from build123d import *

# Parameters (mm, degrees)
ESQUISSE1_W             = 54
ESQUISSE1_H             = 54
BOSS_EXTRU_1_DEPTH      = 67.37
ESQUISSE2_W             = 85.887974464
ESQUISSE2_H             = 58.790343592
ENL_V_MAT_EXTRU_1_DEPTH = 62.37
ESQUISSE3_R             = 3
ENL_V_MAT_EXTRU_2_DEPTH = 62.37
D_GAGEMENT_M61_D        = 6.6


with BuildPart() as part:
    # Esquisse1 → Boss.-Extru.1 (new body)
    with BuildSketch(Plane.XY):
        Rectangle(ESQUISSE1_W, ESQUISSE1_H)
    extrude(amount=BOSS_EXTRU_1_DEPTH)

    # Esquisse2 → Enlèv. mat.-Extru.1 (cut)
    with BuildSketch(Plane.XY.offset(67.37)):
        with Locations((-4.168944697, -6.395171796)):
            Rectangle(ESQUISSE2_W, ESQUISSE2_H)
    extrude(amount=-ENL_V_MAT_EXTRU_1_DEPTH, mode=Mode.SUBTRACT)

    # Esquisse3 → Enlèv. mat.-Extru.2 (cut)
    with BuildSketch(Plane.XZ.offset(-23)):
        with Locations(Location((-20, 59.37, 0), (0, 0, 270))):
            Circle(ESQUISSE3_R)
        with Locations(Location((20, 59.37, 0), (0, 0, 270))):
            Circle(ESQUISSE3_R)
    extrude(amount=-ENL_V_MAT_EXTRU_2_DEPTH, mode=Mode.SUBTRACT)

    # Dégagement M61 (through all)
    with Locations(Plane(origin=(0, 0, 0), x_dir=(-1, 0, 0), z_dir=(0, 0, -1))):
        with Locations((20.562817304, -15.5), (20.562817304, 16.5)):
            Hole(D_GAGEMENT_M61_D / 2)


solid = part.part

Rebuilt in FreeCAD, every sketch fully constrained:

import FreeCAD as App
import Part
import Sketcher
from FreeCAD import Vector
Q = App.Units.Quantity

doc = App.newDocument("Part")
body = doc.addObject("PartDesign::Body", "Body")

sketch1 = body.newObject("Sketcher::SketchObject", "Sketch")
sketch1.AttachmentSupport = (doc.getObject("XY_Plane"), [""])
sketch1.MapMode = "FlatFace"
sketch1.addGeometry([
    Part.LineSegment(Vector(-27, 27, 0), Vector(-27, -27, 0)),
    Part.LineSegment(Vector(-27, -27, 0), Vector(27, -27, 0)),
    Part.LineSegment(Vector(27, -27, 0), Vector(27, 27, 0)),
    Part.LineSegment(Vector(27, 27, 0), Vector(-27, 27, 0)),
], False)
sketch1.addConstraint([
    Sketcher.Constraint("Coincident", 0, 2, 1, 1),
    Sketcher.Constraint("Coincident", 1, 2, 2, 1),
    Sketcher.Constraint("Coincident", 2, 2, 3, 1),
    Sketcher.Constraint("Coincident", 3, 2, 0, 1),
    Sketcher.Constraint("Vertical", 0),
    Sketcher.Constraint("Horizontal", 1),
    Sketcher.Constraint("Vertical", 2),
    Sketcher.Constraint("Horizontal", 3),
    Sketcher.Constraint("Symmetric", 0, 2, 2, 2, -1, 1),
    Sketcher.Constraint("Equal", 3, 0),
    Sketcher.Constraint("DistanceX", 1, 1, 1, 2, Q("54 mm")),
])
pad1 = body.newObject("PartDesign::Pad", "Pad")
pad1.Profile = sketch1
pad1.Length = 67.37

sketch2 = body.newObject("Sketcher::SketchObject", "Sketch001")
sketch2.AttachmentSupport = (doc.getObject("XY_Plane"), [""])
sketch2.MapMode = "FlatFace"
sketch2.AttachmentOffset = App.Placement(Vector(0, 0, 67.37), App.Rotation())
sketch2.addGeometry([
    Part.LineSegment(Vector(-47, 23, 0), Vector(-47, -36, 0)),
    Part.LineSegment(Vector(-47, -36, 0), Vector(39, -36, 0)),
    Part.LineSegment(Vector(39, -36, 0), Vector(39, 23, 0)),
    Part.LineSegment(Vector(39, 23, 0), Vector(-47, 23, 0)),
], False)
sketch2.addConstraint([
    Sketcher.Constraint("Coincident", 0, 2, 1, 1),
    Sketcher.Constraint("Coincident", 1, 2, 2, 1),
    Sketcher.Constraint("Coincident", 2, 2, 3, 1),
    Sketcher.Constraint("Coincident", 3, 2, 0, 1),
    Sketcher.Constraint("Vertical", 0),
    Sketcher.Constraint("Horizontal", 1),
    Sketcher.Constraint("Vertical", 2),
    Sketcher.Constraint("Horizontal", 3),
    Sketcher.Constraint("DistanceY", -1, 1, 2, 2, Q("23 mm")),
    Sketcher.Constraint("DistanceX", 1, 1, 1, 2, Q("85.887974 mm")),
    Sketcher.Constraint("DistanceY", 0, 2, 0, 1, Q("58.790344 mm")),
    Sketcher.Constraint("DistanceX", 0, 2, -1, 1, Q("47.112932 mm")),
])
pocket1 = body.newObject("PartDesign::Pocket", "Pocket")
pocket1.Profile = sketch2
pocket1.Length = 62.37

sketch3 = body.newObject("Sketcher::SketchObject", "Sketch002")
sketch3.AttachmentSupport = (doc.getObject("XZ_Plane"), [""])
sketch3.MapMode = "FlatFace"
sketch3.AttachmentOffset = App.Placement(Vector(0, 0, -23), App.Rotation())
sketch3.addGeometry([
    Part.Circle(Vector(-20, 59.4, 0), Vector(0, 0, 1), 3),
    Part.Circle(Vector(20, 59.4, 0), Vector(0, 0, 1), 3),
], False)
sketch3.addConstraint([
    Sketcher.Constraint("Equal", 0, 1),
    Sketcher.Constraint("Symmetric", 0, 3, 1, 3, -2),
    Sketcher.Constraint("Diameter", 0, Q("6 mm")),
    Sketcher.Constraint("DistanceX", 0, 3, -1, 1, Q("20 mm")),
    Sketcher.Constraint("DistanceY", -1, 1, 0, 3, Q("59.37 mm")),
])
pocket2 = body.newObject("PartDesign::Pocket", "Pocket001")
pocket2.Profile = sketch3
pocket2.Length = 62.37

sketch4 = body.newObject("Sketcher::SketchObject", "Sketch003")
sketch4.AttachmentSupport = (doc.getObject("XY_Plane"), [""])
sketch4.MapMode = "FlatFace"
sketch4.addGeometry([
    Part.Circle(Vector(-20.6, -15.5, 0), Vector(0, 0, 1), 3.3),
    Part.Circle(Vector(-20.6, 16.5, 0), Vector(0, 0, 1), 3.3),
], False)
sketch4.addConstraint([
    Sketcher.Constraint("Equal", 0, 1),
    Sketcher.Constraint("Vertical", 0, 3, 1, 3),
    Sketcher.Constraint("Diameter", 0, Q("6.6 mm")),
    Sketcher.Constraint("DistanceY", 0, 3, 1, 3, Q("32 mm")),
    Sketcher.Constraint("DistanceY", 0, 3, -1, 1, Q("15.5 mm")),
    Sketcher.Constraint("DistanceX", 0, 3, -1, 1, Q("20.562817 mm")),
])
doc.recompute()
hole = body.newObject("PartDesign::Hole", "Hole")
hole.Profile = sketch4
hole.ThreadType = "None"
hole.Diameter = 6.6
hole.DepthType = "ThroughAll"
hole.Reversed = True

doc.recompute()
